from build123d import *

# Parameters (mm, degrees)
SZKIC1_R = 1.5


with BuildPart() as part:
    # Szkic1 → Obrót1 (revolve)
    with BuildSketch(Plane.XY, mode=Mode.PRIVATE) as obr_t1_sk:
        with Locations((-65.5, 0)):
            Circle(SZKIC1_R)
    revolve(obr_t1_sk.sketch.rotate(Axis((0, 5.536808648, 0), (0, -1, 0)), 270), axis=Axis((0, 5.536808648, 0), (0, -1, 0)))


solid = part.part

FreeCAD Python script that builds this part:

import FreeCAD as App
import Part
import Sketcher

doc = App.newDocument("Part")
body = doc.addObject("PartDesign::Body", "Body")

# Sketch on XY plane
sketch1 = body.newObject("Sketcher::SketchObject", "Sketch")
sketch1.AttachmentSupport = (doc.getObject("XY_Plane"), [""])
sketch1.MapMode = "FlatFace"
sketch1.addGeometry(Part.Circle(App.Vector(-65.5, 0, 0), App.Vector(0, 0, 1), 1.5), False)
sketch1.addConstraint(Sketcher.Constraint("PointOnObject", 0, 3, -1))
sketch1.addConstraint(Sketcher.Constraint("Diameter", 0, 3.0))
sketch1.addConstraint(Sketcher.Constraint("DistanceX", 0, 3, -1, 1, 65.5))
revolution = body.newObject("PartDesign::Revolution", "Revolution")
revolution.Profile = sketch1
revolution.ReferenceAxis = (sketch1, ["V_Axis"])
revolution.Angle = 360

doc.recompute()
